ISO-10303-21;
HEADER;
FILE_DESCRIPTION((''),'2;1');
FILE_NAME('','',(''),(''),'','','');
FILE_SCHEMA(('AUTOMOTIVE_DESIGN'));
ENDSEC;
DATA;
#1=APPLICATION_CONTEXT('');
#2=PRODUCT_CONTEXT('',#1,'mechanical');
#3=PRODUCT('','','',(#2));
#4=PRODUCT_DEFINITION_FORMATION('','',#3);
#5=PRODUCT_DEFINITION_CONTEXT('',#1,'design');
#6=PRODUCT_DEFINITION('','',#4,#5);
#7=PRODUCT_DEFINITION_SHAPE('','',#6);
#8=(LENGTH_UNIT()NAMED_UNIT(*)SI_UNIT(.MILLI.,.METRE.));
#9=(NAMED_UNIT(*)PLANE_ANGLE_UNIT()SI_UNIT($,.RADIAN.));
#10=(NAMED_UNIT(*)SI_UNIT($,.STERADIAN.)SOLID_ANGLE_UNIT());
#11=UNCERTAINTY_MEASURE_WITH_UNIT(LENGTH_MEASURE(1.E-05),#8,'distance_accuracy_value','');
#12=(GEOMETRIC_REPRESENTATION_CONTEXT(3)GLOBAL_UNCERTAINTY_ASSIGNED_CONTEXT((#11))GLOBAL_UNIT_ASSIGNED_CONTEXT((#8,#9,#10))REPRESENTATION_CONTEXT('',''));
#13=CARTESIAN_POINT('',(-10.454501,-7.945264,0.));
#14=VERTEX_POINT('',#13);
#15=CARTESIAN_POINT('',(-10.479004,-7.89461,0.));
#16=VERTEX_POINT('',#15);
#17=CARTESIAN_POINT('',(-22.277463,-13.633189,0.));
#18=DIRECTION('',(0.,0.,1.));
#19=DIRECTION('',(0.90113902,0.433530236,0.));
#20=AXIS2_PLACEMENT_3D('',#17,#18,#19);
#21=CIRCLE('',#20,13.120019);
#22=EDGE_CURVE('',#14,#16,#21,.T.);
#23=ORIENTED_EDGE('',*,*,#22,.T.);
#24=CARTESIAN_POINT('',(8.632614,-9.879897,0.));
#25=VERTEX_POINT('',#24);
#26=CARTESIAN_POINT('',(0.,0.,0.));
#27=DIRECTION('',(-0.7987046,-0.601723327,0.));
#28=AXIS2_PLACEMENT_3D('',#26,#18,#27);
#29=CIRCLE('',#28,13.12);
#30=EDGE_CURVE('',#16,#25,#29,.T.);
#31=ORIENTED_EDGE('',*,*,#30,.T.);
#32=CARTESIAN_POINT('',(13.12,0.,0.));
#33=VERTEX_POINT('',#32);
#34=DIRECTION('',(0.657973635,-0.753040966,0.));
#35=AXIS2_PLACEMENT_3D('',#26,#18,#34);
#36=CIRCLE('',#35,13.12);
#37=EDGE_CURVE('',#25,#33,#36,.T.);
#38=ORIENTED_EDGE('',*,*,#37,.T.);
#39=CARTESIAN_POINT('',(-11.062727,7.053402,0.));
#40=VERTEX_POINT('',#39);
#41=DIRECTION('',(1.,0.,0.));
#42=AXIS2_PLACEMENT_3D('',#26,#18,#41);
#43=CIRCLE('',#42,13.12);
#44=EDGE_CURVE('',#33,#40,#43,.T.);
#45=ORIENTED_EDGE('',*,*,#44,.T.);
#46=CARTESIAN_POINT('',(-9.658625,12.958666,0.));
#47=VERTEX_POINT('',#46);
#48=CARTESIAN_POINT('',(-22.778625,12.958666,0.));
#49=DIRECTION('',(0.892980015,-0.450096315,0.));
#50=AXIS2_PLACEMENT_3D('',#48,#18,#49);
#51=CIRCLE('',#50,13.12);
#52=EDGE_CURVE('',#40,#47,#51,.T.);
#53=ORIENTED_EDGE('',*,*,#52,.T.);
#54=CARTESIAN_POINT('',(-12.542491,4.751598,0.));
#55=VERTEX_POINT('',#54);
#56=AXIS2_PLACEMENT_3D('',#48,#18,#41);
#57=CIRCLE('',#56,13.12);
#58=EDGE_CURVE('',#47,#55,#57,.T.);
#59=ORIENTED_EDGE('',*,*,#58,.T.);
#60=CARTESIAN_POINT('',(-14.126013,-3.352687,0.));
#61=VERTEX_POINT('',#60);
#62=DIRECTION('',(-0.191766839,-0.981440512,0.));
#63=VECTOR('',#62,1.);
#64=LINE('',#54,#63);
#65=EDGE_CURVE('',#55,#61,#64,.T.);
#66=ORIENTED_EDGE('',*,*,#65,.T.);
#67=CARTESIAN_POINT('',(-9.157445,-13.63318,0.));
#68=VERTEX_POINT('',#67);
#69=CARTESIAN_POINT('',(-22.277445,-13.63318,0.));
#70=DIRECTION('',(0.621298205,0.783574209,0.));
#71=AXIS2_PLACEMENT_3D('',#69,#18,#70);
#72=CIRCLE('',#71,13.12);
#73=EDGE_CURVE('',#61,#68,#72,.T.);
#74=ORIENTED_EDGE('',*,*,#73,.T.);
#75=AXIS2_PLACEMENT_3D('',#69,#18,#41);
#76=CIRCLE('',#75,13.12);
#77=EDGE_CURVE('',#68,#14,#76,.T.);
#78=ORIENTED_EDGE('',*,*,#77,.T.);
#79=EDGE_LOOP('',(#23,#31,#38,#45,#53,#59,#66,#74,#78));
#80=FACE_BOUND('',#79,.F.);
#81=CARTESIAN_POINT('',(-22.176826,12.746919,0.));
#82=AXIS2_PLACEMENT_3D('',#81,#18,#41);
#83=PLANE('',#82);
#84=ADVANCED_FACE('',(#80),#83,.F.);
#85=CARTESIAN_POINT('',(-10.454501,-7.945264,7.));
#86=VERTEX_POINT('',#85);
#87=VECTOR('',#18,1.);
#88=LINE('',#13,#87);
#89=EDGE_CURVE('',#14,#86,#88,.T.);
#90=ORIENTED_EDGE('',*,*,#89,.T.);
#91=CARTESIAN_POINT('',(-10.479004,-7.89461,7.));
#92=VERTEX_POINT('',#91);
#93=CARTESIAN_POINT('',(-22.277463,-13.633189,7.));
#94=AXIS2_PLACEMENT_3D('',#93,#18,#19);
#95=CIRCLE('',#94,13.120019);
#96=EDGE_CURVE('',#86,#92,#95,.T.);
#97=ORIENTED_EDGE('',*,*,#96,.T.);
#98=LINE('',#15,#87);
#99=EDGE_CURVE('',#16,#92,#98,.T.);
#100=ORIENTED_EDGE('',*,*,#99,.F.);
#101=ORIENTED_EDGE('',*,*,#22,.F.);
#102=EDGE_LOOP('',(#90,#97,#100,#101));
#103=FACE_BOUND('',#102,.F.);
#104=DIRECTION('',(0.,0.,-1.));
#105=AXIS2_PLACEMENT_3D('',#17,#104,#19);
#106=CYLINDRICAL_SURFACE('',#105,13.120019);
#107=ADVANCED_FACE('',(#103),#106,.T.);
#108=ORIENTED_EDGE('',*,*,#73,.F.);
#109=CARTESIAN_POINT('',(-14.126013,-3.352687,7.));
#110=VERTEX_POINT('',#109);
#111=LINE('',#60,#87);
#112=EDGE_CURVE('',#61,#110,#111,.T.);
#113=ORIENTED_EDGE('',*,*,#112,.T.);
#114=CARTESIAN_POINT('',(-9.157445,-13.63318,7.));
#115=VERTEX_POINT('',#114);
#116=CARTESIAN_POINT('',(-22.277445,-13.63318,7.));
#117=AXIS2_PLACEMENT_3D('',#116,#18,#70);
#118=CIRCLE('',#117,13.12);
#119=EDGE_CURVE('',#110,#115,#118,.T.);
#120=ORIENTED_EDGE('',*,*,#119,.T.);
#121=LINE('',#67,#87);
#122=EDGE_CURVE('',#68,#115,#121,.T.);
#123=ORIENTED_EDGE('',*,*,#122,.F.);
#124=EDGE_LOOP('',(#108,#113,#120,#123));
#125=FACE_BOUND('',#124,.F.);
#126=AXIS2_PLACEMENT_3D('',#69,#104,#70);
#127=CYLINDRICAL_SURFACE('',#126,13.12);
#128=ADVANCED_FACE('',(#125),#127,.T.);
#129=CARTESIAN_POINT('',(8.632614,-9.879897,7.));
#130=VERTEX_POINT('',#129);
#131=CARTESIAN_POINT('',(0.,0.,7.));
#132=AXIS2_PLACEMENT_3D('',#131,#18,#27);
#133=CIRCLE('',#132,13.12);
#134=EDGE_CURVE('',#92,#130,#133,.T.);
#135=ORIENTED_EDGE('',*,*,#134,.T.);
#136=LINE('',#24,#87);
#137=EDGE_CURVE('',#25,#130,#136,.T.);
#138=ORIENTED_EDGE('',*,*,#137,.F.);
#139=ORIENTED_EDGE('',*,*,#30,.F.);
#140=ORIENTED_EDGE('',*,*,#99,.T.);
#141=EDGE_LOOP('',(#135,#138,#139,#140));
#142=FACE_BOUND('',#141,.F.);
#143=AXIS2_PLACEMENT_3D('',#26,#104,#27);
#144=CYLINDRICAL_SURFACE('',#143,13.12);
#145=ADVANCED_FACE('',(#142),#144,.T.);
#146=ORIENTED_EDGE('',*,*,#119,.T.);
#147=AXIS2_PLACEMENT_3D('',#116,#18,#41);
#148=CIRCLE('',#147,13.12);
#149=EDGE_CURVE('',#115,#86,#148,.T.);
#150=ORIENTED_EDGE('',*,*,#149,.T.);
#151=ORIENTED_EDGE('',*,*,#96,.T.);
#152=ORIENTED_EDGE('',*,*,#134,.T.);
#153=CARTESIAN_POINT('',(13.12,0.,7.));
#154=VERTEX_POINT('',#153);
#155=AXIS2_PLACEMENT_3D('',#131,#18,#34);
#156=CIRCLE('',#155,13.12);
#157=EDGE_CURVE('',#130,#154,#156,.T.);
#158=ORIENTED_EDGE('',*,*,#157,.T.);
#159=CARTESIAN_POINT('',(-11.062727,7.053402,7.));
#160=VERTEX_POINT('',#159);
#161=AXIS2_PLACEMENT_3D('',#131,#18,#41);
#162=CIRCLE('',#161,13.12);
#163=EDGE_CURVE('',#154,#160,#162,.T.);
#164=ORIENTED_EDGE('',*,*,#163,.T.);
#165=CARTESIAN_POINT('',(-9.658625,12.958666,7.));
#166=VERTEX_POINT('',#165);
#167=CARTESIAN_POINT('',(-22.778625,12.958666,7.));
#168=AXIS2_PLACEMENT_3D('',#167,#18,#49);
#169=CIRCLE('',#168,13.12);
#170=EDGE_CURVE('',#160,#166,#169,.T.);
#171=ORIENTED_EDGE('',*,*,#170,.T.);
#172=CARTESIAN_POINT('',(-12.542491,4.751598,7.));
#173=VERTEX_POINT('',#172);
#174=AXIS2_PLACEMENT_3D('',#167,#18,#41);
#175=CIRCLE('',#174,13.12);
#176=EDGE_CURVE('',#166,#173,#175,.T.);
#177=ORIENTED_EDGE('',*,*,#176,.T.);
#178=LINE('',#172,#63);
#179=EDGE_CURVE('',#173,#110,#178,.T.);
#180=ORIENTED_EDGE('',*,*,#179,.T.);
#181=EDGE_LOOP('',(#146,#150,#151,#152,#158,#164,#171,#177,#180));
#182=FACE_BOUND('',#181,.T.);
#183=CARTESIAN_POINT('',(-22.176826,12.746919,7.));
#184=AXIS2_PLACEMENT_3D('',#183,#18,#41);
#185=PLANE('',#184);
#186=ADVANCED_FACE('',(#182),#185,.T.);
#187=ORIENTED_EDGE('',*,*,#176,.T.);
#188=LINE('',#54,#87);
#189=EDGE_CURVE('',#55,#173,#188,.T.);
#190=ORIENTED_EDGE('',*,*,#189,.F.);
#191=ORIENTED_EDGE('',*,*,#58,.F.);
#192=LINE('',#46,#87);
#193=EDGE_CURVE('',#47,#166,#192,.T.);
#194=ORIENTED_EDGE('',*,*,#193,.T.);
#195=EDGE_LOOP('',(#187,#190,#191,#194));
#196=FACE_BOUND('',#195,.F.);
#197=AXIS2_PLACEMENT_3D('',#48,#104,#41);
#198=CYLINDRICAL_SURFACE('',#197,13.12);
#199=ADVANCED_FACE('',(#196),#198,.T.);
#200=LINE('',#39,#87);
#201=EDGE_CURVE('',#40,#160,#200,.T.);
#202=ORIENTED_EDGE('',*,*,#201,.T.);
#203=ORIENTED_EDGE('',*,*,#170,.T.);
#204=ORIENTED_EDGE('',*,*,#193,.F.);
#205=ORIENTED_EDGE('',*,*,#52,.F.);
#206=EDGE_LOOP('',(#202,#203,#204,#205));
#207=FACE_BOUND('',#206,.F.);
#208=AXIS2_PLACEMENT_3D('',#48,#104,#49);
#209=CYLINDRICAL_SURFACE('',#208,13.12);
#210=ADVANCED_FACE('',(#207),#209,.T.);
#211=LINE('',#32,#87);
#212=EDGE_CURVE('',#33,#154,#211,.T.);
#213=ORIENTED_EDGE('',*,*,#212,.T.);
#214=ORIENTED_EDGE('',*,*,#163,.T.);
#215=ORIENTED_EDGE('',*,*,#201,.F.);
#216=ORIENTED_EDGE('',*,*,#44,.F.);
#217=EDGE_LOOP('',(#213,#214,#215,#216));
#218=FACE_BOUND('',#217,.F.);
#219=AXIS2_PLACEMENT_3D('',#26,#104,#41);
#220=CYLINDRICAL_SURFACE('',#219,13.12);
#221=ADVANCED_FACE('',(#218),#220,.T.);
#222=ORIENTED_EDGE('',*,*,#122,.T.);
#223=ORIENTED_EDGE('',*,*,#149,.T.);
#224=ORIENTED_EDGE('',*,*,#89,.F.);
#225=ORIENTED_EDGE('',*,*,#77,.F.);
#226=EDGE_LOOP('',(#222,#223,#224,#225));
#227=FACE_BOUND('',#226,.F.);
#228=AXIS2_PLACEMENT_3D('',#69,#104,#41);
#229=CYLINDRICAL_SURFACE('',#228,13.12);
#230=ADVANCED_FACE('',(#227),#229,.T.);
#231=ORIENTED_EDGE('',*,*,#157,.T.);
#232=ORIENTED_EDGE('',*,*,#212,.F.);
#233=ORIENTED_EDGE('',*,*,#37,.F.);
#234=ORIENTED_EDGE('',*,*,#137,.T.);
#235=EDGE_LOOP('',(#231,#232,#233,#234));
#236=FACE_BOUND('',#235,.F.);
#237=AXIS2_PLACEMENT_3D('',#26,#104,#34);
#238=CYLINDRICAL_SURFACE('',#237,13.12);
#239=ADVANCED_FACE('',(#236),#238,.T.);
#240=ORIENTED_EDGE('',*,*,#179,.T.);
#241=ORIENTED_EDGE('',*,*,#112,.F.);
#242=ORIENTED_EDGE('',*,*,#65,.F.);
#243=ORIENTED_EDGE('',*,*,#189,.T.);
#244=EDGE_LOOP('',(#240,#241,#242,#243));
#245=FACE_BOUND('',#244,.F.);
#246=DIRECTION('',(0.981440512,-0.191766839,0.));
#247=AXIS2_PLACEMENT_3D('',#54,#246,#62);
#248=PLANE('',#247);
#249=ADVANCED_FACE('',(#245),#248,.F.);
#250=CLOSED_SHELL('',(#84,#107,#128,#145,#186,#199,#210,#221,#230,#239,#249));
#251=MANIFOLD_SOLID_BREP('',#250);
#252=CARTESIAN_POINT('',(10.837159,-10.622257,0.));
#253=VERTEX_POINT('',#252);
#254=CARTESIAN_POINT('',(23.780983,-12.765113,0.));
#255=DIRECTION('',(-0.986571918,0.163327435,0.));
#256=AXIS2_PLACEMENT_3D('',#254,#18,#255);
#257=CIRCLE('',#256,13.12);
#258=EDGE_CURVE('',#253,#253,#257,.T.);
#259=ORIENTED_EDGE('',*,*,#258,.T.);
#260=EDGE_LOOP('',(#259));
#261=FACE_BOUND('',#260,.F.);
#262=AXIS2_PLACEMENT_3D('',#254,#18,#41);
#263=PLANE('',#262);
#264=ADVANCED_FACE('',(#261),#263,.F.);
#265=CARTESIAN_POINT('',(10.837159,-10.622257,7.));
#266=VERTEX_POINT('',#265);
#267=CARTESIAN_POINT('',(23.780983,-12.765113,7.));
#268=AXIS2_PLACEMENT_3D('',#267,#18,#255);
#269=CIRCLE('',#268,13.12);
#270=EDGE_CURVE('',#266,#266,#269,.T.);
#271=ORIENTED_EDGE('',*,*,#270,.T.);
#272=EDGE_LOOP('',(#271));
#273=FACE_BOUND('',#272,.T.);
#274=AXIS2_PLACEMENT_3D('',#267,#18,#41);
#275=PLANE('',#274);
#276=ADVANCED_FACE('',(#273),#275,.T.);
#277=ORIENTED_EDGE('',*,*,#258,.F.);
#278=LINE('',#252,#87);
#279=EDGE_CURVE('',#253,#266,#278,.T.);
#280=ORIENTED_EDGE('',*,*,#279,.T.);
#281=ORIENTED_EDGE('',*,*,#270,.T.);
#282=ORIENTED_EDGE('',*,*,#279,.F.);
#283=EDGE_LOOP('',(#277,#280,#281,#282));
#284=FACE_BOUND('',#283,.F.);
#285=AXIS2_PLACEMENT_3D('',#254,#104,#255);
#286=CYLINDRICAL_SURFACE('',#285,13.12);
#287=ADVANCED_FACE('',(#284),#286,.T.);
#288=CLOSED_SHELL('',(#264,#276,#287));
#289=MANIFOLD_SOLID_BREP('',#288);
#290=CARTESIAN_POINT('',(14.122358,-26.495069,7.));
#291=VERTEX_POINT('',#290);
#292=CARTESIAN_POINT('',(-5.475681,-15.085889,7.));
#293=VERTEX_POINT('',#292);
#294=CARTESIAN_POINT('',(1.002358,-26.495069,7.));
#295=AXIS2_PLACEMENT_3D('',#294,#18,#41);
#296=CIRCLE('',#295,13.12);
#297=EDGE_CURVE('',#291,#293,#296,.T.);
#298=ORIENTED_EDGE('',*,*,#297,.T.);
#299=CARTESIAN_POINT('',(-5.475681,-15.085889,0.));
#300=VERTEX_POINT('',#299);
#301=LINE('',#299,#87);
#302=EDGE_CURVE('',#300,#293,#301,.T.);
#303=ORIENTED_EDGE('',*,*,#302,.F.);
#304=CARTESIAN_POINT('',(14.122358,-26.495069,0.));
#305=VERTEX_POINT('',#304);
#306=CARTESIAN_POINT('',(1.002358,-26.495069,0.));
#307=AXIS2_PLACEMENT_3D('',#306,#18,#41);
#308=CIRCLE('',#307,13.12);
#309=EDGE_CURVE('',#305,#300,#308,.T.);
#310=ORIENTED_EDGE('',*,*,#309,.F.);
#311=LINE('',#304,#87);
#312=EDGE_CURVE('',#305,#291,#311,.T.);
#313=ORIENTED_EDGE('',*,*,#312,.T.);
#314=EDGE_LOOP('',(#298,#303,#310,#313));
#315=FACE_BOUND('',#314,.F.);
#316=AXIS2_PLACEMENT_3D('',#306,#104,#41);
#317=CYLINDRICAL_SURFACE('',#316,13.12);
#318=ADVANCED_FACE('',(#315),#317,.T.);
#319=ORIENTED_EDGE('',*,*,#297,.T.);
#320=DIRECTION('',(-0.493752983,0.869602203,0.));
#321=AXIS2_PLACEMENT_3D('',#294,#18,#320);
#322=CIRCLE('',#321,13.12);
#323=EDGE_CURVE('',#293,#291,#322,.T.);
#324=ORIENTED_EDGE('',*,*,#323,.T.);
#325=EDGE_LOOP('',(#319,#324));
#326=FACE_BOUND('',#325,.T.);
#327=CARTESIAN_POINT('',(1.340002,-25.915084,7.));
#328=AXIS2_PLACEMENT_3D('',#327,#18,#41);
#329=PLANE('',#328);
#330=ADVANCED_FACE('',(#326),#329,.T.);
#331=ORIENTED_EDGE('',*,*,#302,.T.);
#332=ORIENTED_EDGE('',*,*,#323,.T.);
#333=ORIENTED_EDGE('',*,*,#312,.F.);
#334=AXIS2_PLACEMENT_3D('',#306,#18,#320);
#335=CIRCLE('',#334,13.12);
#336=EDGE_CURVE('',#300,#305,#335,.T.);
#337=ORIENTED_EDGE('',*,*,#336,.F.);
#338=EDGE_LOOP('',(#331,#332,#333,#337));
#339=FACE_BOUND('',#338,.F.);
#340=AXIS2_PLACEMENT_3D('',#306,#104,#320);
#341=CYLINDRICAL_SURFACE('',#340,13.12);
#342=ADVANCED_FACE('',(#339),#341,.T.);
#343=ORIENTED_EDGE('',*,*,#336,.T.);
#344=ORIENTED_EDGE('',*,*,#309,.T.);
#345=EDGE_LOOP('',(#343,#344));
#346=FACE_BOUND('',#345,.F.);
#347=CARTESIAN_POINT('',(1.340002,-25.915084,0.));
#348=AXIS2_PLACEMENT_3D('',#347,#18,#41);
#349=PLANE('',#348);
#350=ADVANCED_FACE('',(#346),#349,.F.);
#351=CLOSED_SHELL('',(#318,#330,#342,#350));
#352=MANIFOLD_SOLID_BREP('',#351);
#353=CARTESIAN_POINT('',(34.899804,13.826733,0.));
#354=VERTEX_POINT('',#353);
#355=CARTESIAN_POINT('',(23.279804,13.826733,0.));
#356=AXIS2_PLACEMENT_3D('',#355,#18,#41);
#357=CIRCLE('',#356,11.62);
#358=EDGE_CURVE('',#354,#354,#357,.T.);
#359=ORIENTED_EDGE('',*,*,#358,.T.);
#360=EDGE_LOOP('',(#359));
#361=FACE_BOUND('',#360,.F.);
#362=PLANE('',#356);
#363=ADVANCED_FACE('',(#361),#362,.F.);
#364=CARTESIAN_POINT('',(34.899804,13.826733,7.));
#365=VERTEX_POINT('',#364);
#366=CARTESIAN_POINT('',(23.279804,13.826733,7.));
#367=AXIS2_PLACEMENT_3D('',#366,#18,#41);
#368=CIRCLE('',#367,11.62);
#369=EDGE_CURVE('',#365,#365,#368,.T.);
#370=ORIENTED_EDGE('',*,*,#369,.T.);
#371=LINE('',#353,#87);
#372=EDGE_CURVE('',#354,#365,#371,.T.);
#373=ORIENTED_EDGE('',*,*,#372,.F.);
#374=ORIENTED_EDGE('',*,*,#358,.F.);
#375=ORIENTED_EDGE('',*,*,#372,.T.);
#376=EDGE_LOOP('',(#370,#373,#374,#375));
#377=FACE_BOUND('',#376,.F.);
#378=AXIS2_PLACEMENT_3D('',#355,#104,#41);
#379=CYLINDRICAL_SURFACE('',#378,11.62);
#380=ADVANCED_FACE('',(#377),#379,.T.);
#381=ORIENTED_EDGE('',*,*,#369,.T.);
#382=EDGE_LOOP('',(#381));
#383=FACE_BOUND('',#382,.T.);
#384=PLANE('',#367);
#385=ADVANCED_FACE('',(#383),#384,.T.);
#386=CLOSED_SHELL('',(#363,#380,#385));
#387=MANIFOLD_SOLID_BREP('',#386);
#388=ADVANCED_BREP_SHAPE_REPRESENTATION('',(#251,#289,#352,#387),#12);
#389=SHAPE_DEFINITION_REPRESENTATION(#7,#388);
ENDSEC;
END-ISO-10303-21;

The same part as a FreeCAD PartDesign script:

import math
import FreeCAD as App
import Part
import Sketcher

V = App.Vector
Q = App.Units.Quantity

doc = App.newDocument("Part")
params = doc.addObject("Spreadsheet::Sheet", "Params")
for row, (alias, value) in enumerate([
    ("sketch1_radius", "13.12 mm"),
    ("pad1_length", "7 mm"),
    ("sketch2_radius", "13.12 mm"),
    ("pad2_length", "7 mm"),
    ("sketch3_diameter", "26.24 mm"),
    ("pad3_length", "7 mm"),
    ("sketch4_diameter", "23.24 mm"),
    ("pad4_length", "7 mm"),
], start=1):
    params.set(f"A{row}", alias)
    params.set(f"B{row}", "=" + value)
    params.setAlias(f"B{row}", alias)

body = doc.addObject("PartDesign::Body", "Body")

# Sketch on XY plane
sketch1 = doc.addObject("Sketcher::SketchObject", "Sketch")
body.addObject(sketch1)
sketch1.AttachmentSupport = (doc.XY_Plane, [""])
sketch1.MapMode = "FlatFace"
sketch1.addGeometry([
    Part.ArcOfCircle(Part.Circle(V(0, 0, 0), V(0, 0, 1), 13.12), math.radians(0), math.radians(147)),  # 0
    Part.ArcOfCircle(Part.Circle(V(-22.78, 12.96, 0), V(0, 0, 1), 13.12), math.radians(-27), math.radians(0)),  # 1
    Part.ArcOfCircle(Part.Circle(V(-22.78, 12.96, 0), V(0, 0, 1), 13.12), math.radians(0), math.radians(321)),  # 2
    Part.LineSegment(V(-12.54, 4.75, 0), V(-14.13, -3.35, 0)),  # 3
    Part.ArcOfCircle(Part.Circle(V(-22.28, -13.63, 0), V(0, 0, 1), 13.12), math.radians(52), math.radians(360)),  # 4
    Part.ArcOfCircle(Part.Circle(V(-22.28, -13.63, 0), V(0, 0, 1), 13.12), math.radians(0), math.radians(26)),  # 5
    Part.ArcOfCircle(Part.Circle(V(-22.28, -13.63, 0), V(0, 0, 1), 13.12), math.radians(25.69), math.radians(25.94)),  # 6
    Part.ArcOfCircle(Part.Circle(V(0, 0, 0), V(0, 0, 1), 13.12), math.radians(-143), math.radians(-49)),  # 7
    Part.ArcOfCircle(Part.Circle(V(0, 0, 0), V(0, 0, 1), 13.12), math.radians(-49), math.radians(0)),  # 8
], False)
sketch1.addConstraint([
    Sketcher.Constraint("Coincident", 0, 2, 1, 1),
    Sketcher.Constraint("Tangent", 1, 2, 2, 1),
    Sketcher.Constraint("Coincident", 2, 2, 3, 1),
    Sketcher.Constraint("Coincident", 3, 2, 4, 1),
    Sketcher.Constraint("Tangent", 4, 2, 5, 1),
    Sketcher.Constraint("Tangent", 5, 2, 6, 1),
    Sketcher.Constraint("Coincident", 6, 2, 7, 1),
    Sketcher.Constraint("Tangent", 7, 2, 8, 1),
    Sketcher.Constraint("Tangent", 8, 2, 0, 1),
    Sketcher.Constraint("Coincident", 0, 3, -1, 1),
    Sketcher.Constraint("Coincident", 7, 3, -1, 1),
    Sketcher.Constraint("Equal", 0, 1),
    Sketcher.Constraint("Equal", 1, 2),
    Sketcher.Constraint("Equal", 2, 4),
    Sketcher.Constraint("Equal", 4, 5),
    Sketcher.Constraint("PointOnObject", 8, 2, -1),
    Sketcher.Constraint("Horizontal", 2, 3, 1, 2),
    Sketcher.Constraint("Horizontal", 5, 3, 4, 2),
    Sketcher.Constraint("Radius", 0, Q("13.12 mm")),
    Sketcher.Constraint("Radius", 6, Q("13.120019 mm")),
    Sketcher.Constraint("DistanceY", -1, 1, 0, 2, Q("7.053402 mm")),
    Sketcher.Constraint("DistanceX", 5, 2, -1, 1, Q("10.454501 mm")),
    Sketcher.Constraint("DistanceY", 6, 3, 3, 2, Q("10.280502 mm")),
    Sketcher.Constraint("Distance", 3, Q("8.25754 mm")),
    Sketcher.Constraint("DistanceY", 4, 3, -1, 1, Q("13.63318 mm")),
    Sketcher.Constraint("DistanceX", 2, 2, -1, 1, Q("12.542491 mm")),
    Sketcher.Constraint("DistanceY", 6, 2, -1, 1, Q("7.89461 mm")),
    Sketcher.Constraint("DistanceX", 4, 2, 7, 2, Q("17.790059 mm")),
])
sketch1.setExpression("Constraints[18]", "Params.sketch1_radius")
pad1 = doc.addObject("PartDesign::Pad", "Pad")
body.addObject(pad1)
pad1.Profile = sketch1
pad1.setExpression("Length", "Params.pad1_length")
body2 = doc.addObject("PartDesign::Body", "Body001")

# Sketch on XY plane
sketch2 = doc.addObject("Sketcher::SketchObject", "Sketch001")
body2.addObject(sketch2)
sketch2.AttachmentSupport = (doc.getObject("XY_Plane001"), [""])
sketch2.MapMode = "FlatFace"
sketch2.addGeometry([
    Part.ArcOfCircle(Part.Circle(V(1, -26, 0), V(0, 0, 1), 13), math.radians(0), math.radians(120)),
    Part.ArcOfCircle(Part.Circle(V(1, -26, 0), V(0, 0, 1), 13), math.radians(120), math.radians(360)),
], False)
sketch2.addConstraint([
    Sketcher.Constraint("Tangent", 0, 1, 1, 2),
    Sketcher.Constraint("Coincident", 1, 1, 0, 2),
    Sketcher.Constraint("Horizontal", 1, 3, 0, 1),
    Sketcher.Constraint("Radius", 0, Q("13.12 mm")),
    Sketcher.Constraint("DistanceX", -1, 1, 0, 3, Q("1.002358 mm")),
    Sketcher.Constraint("DistanceY", 0, 3, -1, 1, Q("26.495069 mm")),
    Sketcher.Constraint("DistanceX", 1, 1, -1, 1, Q("5.475681 mm")),
])
sketch2.setExpression("Constraints[3]", "Params.sketch2_radius")
pad2 = doc.addObject("PartDesign::Pad", "Pad001")
body2.addObject(pad2)
pad2.Profile = sketch2
pad2.setExpression("Length", "Params.pad2_length")
body3 = doc.addObject("PartDesign::Body", "Body002")

# Sketch on XY plane
sketch3 = doc.addObject("Sketcher::SketchObject", "Sketch002")
body3.addObject(sketch3)
sketch3.AttachmentSupport = (doc.getObject("XY_Plane002"), [""])
sketch3.MapMode = "FlatFace"
sketch3.addGeometry(Part.Circle(V(24, -13, 0), V(0, 0, 1), 13), False)
sketch3.addConstraint([
    Sketcher.Constraint("Diameter", 0, Q("26.24 mm")),
    Sketcher.Constraint("DistanceX", -1, 1, 0, 3, Q("23.780983 mm")),
    Sketcher.Constraint("DistanceY", 0, 3, -1, 1, Q("12.765113 mm")),
])
sketch3.setExpression("Constraints[0]", "Params.sketch3_diameter")
pad3 = doc.addObject("PartDesign::Pad", "Pad002")
body3.addObject(pad3)
pad3.Profile = sketch3
pad3.setExpression("Length", "Params.pad3_length")
body4 = doc.addObject("PartDesign::Body", "Body003")

# Sketch on XY plane
sketch4 = doc.addObject("Sketcher::SketchObject", "Sketch003")
body4.addObject(sketch4)
sketch4.AttachmentSupport = (doc.getObject("XY_Plane003"), [""])
sketch4.MapMode = "FlatFace"
sketch4.addGeometry(Part.Circle(V(23, 14, 0), V(0, 0, 1), 12), False)
sketch4.addConstraint([
    Sketcher.Constraint("Diameter", 0, Q("23.24 mm")),
    Sketcher.Constraint("DistanceX", -1, 1, 0, 3, Q("23.279804 mm")),
    Sketcher.Constraint("DistanceY", -1, 1, 0, 3, Q("13.826733 mm")),
])
sketch4.setExpression("Constraints[0]", "Params.sketch4_diameter")
pad4 = doc.addObject("PartDesign::Pad", "Pad003")
body4.addObject(pad4)
pad4.Profile = sketch4
pad4.setExpression("Length", "Params.pad4_length")

doc.recompute()
